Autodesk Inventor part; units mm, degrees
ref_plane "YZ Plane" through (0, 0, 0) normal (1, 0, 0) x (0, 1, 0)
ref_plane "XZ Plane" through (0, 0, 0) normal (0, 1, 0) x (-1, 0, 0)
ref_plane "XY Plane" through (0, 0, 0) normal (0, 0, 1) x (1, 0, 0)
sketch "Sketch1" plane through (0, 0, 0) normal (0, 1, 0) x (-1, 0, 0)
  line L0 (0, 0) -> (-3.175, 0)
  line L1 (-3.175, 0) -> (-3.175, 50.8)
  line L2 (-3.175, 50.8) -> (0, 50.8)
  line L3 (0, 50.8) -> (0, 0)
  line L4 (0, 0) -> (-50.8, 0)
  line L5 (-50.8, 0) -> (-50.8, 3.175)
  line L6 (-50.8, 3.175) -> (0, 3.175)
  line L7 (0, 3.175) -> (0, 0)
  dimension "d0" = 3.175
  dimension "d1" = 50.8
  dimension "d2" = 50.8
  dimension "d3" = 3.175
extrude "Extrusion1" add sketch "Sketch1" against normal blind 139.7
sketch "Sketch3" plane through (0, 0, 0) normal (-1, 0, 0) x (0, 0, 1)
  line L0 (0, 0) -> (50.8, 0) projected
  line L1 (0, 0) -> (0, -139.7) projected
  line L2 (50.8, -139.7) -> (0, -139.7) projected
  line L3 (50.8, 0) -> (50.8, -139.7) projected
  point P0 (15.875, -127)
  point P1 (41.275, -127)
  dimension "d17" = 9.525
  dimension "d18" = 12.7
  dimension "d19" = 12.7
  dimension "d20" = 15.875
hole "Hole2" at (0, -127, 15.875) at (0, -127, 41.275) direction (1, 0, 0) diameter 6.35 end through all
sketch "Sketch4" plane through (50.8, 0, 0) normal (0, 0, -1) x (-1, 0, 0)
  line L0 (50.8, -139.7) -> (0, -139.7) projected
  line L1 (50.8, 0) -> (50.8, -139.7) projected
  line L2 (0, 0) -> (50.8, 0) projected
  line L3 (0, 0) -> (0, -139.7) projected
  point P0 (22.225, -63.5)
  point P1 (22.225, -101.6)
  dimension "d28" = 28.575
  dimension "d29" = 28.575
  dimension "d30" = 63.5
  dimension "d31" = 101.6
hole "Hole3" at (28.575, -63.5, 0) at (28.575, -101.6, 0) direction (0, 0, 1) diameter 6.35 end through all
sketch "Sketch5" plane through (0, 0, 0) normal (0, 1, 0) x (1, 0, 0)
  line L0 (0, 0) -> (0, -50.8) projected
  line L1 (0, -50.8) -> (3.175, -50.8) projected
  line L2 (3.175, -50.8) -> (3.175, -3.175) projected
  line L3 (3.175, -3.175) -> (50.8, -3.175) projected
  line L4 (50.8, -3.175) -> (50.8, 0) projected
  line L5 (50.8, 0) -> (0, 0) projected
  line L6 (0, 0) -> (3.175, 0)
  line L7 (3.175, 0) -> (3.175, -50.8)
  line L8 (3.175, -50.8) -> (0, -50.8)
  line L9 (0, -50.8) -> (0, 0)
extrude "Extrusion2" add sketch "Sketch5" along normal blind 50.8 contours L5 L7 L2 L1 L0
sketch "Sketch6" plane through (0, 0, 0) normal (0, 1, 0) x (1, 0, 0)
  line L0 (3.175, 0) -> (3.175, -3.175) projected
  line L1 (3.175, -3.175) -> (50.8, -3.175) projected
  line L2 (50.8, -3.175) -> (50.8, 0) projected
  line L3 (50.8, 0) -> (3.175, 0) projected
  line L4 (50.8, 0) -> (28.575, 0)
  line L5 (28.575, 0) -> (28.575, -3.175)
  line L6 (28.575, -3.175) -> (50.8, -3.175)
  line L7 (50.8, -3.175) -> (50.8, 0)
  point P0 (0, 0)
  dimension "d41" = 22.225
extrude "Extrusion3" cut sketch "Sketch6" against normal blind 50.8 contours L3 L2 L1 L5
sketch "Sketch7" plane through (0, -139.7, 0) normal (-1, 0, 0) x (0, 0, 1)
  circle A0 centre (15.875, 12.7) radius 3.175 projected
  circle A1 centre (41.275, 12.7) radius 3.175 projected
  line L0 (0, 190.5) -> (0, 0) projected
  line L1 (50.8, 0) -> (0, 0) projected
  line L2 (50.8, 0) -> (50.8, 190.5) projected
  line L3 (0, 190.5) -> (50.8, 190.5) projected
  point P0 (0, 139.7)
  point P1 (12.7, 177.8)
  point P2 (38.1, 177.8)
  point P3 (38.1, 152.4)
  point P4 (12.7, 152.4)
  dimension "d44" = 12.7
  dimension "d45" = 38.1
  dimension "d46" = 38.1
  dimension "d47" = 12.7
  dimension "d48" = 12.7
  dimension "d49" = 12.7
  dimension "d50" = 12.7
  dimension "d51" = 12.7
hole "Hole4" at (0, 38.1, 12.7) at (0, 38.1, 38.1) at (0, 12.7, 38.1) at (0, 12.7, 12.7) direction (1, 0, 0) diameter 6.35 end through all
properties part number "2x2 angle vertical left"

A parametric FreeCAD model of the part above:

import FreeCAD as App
import Part
import Sketcher
from FreeCAD import Vector
Q = App.Units.Quantity

doc = App.newDocument("Part")
params = doc.addObject("Spreadsheet::Sheet", "Params")
for row, (alias, value) in enumerate([
    ("sketch1_width", "2 in"),
    ("sketch1_width2", "0.125 in"),
    ("pad1_length", "5.5 in"),
    ("sketch2_diameter", "0.25 in"),
    ("hole_diameter", "0.25 in"),
    ("sketch3_diameter", "0.25 in"),
    ("hole2_diameter", "0.25 in"),
    ("sketch4_height", "2 in"),
    ("sketch4_width", "0.125 in"),
    ("pad2_length", "2 in"),
    ("sketch5_width", "0.875 in"),
    ("sketch5_height", "0.125 in"),
    ("pocket1_length", "2 in"),
    ("sketch6_diameter", "0.25 in"),
    ("hole3_diameter", "0.25 in"),
], start=1):
    params.set(f"A{row}", alias)
    params.set(f"B{row}", "=" + value)
    params.setAlias(f"B{row}", alias)

body = doc.addObject("PartDesign::Body", "Body")

# Sketch on XZ plane
sketch1 = body.newObject("Sketcher::SketchObject", "Sketch")
sketch1.AttachmentSupport = (doc.getObject("XZ_Plane"), [""])
sketch1.MapMode = "FlatFace"
sketch1.addGeometry([
    Part.LineSegment(Vector(0, 0, 0), Vector(0, 50.8, 0)),  # 0
    Part.LineSegment(Vector(0, 50.8, 0), Vector(3.2, 50.8, 0)),  # 1
    Part.LineSegment(Vector(3.2, 50.8, 0), Vector(3.2, 3.2, 0)),  # 2
    Part.LineSegment(Vector(3.2, 3.2, 0), Vector(50.8, 3.2, 0)),  # 3
    Part.LineSegment(Vector(50.8, 3.2, 0), Vector(50.8, 0, 0)),  # 4
    Part.LineSegment(Vector(50.8, 0, 0), Vector(0, 0, 0)),  # 5
], False)
sketch1.addConstraint([
    Sketcher.Constraint("Coincident", 0, 2, 1, 1),
    Sketcher.Constraint("Coincident", 1, 2, 2, 1),
    Sketcher.Constraint("Coincident", 2, 2, 3, 1),
    Sketcher.Constraint("Coincident", 3, 2, 4, 1),
    Sketcher.Constraint("Coincident", 4, 2, 5, 1),
    Sketcher.Constraint("Coincident", 5, 2, 0, 1),
    Sketcher.Constraint("Vertical", 0),
    Sketcher.Constraint("Horizontal", 1),
    Sketcher.Constraint("Vertical", 2),
    Sketcher.Constraint("Horizontal", 3),
    Sketcher.Constraint("Vertical", 4),
    Sketcher.Constraint("Horizontal", 5),
    Sketcher.Constraint("Coincident", 5, 2, -1, 1),
    Sketcher.Constraint("Equal", 5, 0),
    Sketcher.Constraint("Equal", 3, 2),
    Sketcher.Constraint("DistanceX", 5, 2, 5, 1, Q("2 in")),
    Sketcher.Constraint("DistanceX", 1, 1, 1, 2, Q("0.125 in")),
])
sketch1.setExpression("Constraints[15]", "Params.sketch1_width")
sketch1.setExpression("Constraints[16]", "Params.sketch1_width2")
pad1 = body.newObject("PartDesign::Pad", "Pad")
pad1.Profile = sketch1
pad1.setExpression("Length", "Params.pad1_length")

# Sketch on YZ plane
sketch2 = body.newObject("Sketcher::SketchObject", "Sketch001")
sketch2.AttachmentSupport = (doc.getObject("YZ_Plane"), [""])
sketch2.MapMode = "FlatFace"
sketch2.addGeometry([
    Part.Circle(Vector(-127, 15.9, 0), Vector(0, 0, 1), 3.2),
    Part.Circle(Vector(-127, 41.3, 0), Vector(0, 0, 1), 3.2),
], False)
sketch2.addConstraint([
    Sketcher.Constraint("Equal", 0, 1),
    Sketcher.Constraint("Vertical", 0, 3, 1, 3),
    Sketcher.Constraint("Diameter", 0, Q("0.25 in")),
    Sketcher.Constraint("DistanceX", 0, 3, -1, 1, Q("5 in")),
    Sketcher.Constraint("DistanceY", 0, 3, 1, 3, Q("1 in")),
    Sketcher.Constraint("DistanceY", -1, 1, 0, 3, Q("0.625 in")),
])
sketch2.setExpression("Constraints[2]", "Params.sketch2_diameter")
doc.recompute()
hole = body.newObject("PartDesign::Hole", "Hole")
hole.Profile = sketch2
hole.ThreadType = "None"
hole.setExpression("Diameter", "Params.hole_diameter")
hole.DepthType = "ThroughAll"
hole.Reversed = True

# Sketch on XY plane
sketch3 = body.newObject("Sketcher::SketchObject", "Sketch002")
sketch3.AttachmentSupport = (doc.getObject("XY_Plane"), [""])
sketch3.MapMode = "FlatFace"
sketch3.addGeometry([
    Part.Circle(Vector(28.6, -63.5, 0), Vector(0, 0, 1), 3.2),
    Part.Circle(Vector(28.6, -101.6, 0), Vector(0, 0, 1), 3.2),
], False)
sketch3.addConstraint([
    Sketcher.Constraint("Equal", 0, 1),
    Sketcher.Constraint("Vertical", 0, 3, 1, 3),
    Sketcher.Constraint("Diameter", 0, Q("0.25 in")),
    Sketcher.Constraint("DistanceY", 1, 3, -1, 1, Q("4 in")),
    Sketcher.Constraint("DistanceY", 0, 3, -1, 1, Q("2.5 in")),
    Sketcher.Constraint("DistanceX", -1, 1, 0, 3, Q("1.125 in")),
])
sketch3.setExpression("Constraints[2]", "Params.sketch3_diameter")
doc.recompute()
hole2 = body.newObject("PartDesign::Hole", "Hole001")
hole2.Profile = sketch3
hole2.ThreadType = "None"
hole2.setExpression("Diameter", "Params.hole2_diameter")
hole2.DepthType = "ThroughAll"
hole2.Reversed = True

# Sketch on XZ plane
sketch4 = body.newObject("Sketcher::SketchObject", "Sketch003")
sketch4.AttachmentSupport = (doc.getObject("XZ_Plane"), [""])
sketch4.MapMode = "FlatFace"
sketch4.addGeometry([
    Part.LineSegment(Vector(3.2, 0, 0), Vector(0, 0, 0)),
    Part.LineSegment(Vector(0, 0, 0), Vector(0, 50.8, 0)),
    Part.LineSegment(Vector(0, 50.8, 0), Vector(3.2, 50.8, 0)),
    Part.LineSegment(Vector(3.2, 50.8, 0), Vector(3.2, 0, 0)),
], False)
sketch4.addConstraint([
    Sketcher.Constraint("Coincident", 0, 2, 1, 1),
    Sketcher.Constraint("Coincident", 1, 2, 2, 1),
    Sketcher.Constraint("Coincident", 2, 2, 3, 1),
    Sketcher.Constraint("Coincident", 3, 2, 0, 1),
    Sketcher.Constraint("Horizontal", 0),
    Sketcher.Constraint("Vertical", 1),
    Sketcher.Constraint("Horizontal", 2),
    Sketcher.Constraint("Vertical", 3),
    Sketcher.Constraint("Coincident", 0, 2, -1, 1),
    Sketcher.Constraint("DistanceY", 1, 1, 1, 2, Q("2 in")),
    Sketcher.Constraint("DistanceX", 0, 2, 0, 1, Q("0.125 in")),
])
sketch4.setExpression("Constraints[9]", "Params.sketch4_height")
sketch4.setExpression("Constraints[10]", "Params.sketch4_width")
pad2 = body.newObject("PartDesign::Pad", "Pad001")
pad2.Profile = sketch4
pad2.setExpression("Length", "Params.pad2_length")
pad2.Reversed = True

# Sketch on XZ plane
sketch5 = body.newObject("Sketcher::SketchObject", "Sketch004")
sketch5.AttachmentSupport = (doc.getObject("XZ_Plane"), [""])
sketch5.MapMode = "FlatFace"
sketch5.addGeometry([
    Part.LineSegment(Vector(50.8, 0, 0), Vector(28.6, 0, 0)),
    Part.LineSegment(Vector(28.6, 0, 0), Vector(28.6, 3.2, 0)),
    Part.LineSegment(Vector(28.6, 3.2, 0), Vector(50.8, 3.2, 0)),
    Part.LineSegment(Vector(50.8, 3.2, 0), Vector(50.8, 0, 0)),
], False)
sketch5.addConstraint([
    Sketcher.Constraint("Coincident", 0, 2, 1, 1),
    Sketcher.Constraint("Coincident", 1, 2, 2, 1),
    Sketcher.Constraint("Coincident", 2, 2, 3, 1),
    Sketcher.Constraint("Coincident", 3, 2, 0, 1),
    Sketcher.Constraint("Horizontal", 0),
    Sketcher.Constraint("Vertical", 1),
    Sketcher.Constraint("Horizontal", 2),
    Sketcher.Constraint("Vertical", 3),
    Sketcher.Constraint("PointOnObject", 0, 2, -1),
    Sketcher.Constraint("DistanceX", 0, 2, 0, 1, Q("0.875 in")),
    Sketcher.Constraint("DistanceX", -1, 1, 2, 2, Q("2 in")),
    Sketcher.Constraint("DistanceY", 1, 1, 1, 2, Q("0.125 in")),
])
sketch5.setExpression("Constraints[9]", "Params.sketch5_width")
sketch5.setExpression("Constraints[11]", "Params.sketch5_height")
pocket1 = body.newObject("PartDesign::Pocket", "Pocket")
pocket1.Profile = sketch5
pocket1.setExpression("Length", "Params.pocket1_length")
pocket1.Reversed = True

# Sketch on YZ plane
sketch6 = body.newObject("Sketcher::SketchObject", "Sketch005")
sketch6.AttachmentSupport = (doc.getObject("YZ_Plane"), [""])
sketch6.MapMode = "FlatFace"
sketch6.addGeometry([
    Part.Circle(Vector(38.1, 12.7, 0), Vector(0, 0, 1), 3.2),
    Part.Circle(Vector(38.1, 38.1, 0), Vector(0, 0, 1), 3.2),
    Part.Circle(Vector(12.7, 38.1, 0), Vector(0, 0, 1), 3.2),
    Part.Circle(Vector(12.7, 12.7, 0), Vector(0, 0, 1), 3.2),
], False)
sketch6.addConstraint([
    Sketcher.Constraint("Equal", 0, 1),
    Sketcher.Constraint("Equal", 1, 2),
    Sketcher.Constraint("Equal", 2, 3),
    Sketcher.Constraint("Horizontal", 1, 3, 2, 3),
    Sketcher.Constraint("Horizontal", 0, 3, 3, 3),
    Sketcher.Constraint("Vertical", 0, 3, 1, 3),
    Sketcher.Constraint("Vertical", 2, 3, 3, 3),
    Sketcher.Constraint("Diameter", 0, Q("0.25 in")),
    Sketcher.Constraint("DistanceY", 0, 3, 1, 3, Q("1 in")),
    Sketcher.Constraint("DistanceX", 2, 3, 1, 3, Q("1 in")),
    Sketcher.Constraint("DistanceX", -1, 1, 0, 3, Q("1.5 in")),
    Sketcher.Constraint("DistanceY", -1, 1, 0, 3, Q("0.5 in")),
])
sketch6.setExpression("Constraints[7]", "Params.sketch6_diameter")
doc.recompute()
hole3 = body.newObject("PartDesign::Hole", "Hole002")
hole3.Profile = sketch6
hole3.ThreadType = "None"
hole3.setExpression("Diameter", "Params.hole3_diameter")
hole3.DepthType = "ThroughAll"
hole3.Reversed = True

doc.recompute()
